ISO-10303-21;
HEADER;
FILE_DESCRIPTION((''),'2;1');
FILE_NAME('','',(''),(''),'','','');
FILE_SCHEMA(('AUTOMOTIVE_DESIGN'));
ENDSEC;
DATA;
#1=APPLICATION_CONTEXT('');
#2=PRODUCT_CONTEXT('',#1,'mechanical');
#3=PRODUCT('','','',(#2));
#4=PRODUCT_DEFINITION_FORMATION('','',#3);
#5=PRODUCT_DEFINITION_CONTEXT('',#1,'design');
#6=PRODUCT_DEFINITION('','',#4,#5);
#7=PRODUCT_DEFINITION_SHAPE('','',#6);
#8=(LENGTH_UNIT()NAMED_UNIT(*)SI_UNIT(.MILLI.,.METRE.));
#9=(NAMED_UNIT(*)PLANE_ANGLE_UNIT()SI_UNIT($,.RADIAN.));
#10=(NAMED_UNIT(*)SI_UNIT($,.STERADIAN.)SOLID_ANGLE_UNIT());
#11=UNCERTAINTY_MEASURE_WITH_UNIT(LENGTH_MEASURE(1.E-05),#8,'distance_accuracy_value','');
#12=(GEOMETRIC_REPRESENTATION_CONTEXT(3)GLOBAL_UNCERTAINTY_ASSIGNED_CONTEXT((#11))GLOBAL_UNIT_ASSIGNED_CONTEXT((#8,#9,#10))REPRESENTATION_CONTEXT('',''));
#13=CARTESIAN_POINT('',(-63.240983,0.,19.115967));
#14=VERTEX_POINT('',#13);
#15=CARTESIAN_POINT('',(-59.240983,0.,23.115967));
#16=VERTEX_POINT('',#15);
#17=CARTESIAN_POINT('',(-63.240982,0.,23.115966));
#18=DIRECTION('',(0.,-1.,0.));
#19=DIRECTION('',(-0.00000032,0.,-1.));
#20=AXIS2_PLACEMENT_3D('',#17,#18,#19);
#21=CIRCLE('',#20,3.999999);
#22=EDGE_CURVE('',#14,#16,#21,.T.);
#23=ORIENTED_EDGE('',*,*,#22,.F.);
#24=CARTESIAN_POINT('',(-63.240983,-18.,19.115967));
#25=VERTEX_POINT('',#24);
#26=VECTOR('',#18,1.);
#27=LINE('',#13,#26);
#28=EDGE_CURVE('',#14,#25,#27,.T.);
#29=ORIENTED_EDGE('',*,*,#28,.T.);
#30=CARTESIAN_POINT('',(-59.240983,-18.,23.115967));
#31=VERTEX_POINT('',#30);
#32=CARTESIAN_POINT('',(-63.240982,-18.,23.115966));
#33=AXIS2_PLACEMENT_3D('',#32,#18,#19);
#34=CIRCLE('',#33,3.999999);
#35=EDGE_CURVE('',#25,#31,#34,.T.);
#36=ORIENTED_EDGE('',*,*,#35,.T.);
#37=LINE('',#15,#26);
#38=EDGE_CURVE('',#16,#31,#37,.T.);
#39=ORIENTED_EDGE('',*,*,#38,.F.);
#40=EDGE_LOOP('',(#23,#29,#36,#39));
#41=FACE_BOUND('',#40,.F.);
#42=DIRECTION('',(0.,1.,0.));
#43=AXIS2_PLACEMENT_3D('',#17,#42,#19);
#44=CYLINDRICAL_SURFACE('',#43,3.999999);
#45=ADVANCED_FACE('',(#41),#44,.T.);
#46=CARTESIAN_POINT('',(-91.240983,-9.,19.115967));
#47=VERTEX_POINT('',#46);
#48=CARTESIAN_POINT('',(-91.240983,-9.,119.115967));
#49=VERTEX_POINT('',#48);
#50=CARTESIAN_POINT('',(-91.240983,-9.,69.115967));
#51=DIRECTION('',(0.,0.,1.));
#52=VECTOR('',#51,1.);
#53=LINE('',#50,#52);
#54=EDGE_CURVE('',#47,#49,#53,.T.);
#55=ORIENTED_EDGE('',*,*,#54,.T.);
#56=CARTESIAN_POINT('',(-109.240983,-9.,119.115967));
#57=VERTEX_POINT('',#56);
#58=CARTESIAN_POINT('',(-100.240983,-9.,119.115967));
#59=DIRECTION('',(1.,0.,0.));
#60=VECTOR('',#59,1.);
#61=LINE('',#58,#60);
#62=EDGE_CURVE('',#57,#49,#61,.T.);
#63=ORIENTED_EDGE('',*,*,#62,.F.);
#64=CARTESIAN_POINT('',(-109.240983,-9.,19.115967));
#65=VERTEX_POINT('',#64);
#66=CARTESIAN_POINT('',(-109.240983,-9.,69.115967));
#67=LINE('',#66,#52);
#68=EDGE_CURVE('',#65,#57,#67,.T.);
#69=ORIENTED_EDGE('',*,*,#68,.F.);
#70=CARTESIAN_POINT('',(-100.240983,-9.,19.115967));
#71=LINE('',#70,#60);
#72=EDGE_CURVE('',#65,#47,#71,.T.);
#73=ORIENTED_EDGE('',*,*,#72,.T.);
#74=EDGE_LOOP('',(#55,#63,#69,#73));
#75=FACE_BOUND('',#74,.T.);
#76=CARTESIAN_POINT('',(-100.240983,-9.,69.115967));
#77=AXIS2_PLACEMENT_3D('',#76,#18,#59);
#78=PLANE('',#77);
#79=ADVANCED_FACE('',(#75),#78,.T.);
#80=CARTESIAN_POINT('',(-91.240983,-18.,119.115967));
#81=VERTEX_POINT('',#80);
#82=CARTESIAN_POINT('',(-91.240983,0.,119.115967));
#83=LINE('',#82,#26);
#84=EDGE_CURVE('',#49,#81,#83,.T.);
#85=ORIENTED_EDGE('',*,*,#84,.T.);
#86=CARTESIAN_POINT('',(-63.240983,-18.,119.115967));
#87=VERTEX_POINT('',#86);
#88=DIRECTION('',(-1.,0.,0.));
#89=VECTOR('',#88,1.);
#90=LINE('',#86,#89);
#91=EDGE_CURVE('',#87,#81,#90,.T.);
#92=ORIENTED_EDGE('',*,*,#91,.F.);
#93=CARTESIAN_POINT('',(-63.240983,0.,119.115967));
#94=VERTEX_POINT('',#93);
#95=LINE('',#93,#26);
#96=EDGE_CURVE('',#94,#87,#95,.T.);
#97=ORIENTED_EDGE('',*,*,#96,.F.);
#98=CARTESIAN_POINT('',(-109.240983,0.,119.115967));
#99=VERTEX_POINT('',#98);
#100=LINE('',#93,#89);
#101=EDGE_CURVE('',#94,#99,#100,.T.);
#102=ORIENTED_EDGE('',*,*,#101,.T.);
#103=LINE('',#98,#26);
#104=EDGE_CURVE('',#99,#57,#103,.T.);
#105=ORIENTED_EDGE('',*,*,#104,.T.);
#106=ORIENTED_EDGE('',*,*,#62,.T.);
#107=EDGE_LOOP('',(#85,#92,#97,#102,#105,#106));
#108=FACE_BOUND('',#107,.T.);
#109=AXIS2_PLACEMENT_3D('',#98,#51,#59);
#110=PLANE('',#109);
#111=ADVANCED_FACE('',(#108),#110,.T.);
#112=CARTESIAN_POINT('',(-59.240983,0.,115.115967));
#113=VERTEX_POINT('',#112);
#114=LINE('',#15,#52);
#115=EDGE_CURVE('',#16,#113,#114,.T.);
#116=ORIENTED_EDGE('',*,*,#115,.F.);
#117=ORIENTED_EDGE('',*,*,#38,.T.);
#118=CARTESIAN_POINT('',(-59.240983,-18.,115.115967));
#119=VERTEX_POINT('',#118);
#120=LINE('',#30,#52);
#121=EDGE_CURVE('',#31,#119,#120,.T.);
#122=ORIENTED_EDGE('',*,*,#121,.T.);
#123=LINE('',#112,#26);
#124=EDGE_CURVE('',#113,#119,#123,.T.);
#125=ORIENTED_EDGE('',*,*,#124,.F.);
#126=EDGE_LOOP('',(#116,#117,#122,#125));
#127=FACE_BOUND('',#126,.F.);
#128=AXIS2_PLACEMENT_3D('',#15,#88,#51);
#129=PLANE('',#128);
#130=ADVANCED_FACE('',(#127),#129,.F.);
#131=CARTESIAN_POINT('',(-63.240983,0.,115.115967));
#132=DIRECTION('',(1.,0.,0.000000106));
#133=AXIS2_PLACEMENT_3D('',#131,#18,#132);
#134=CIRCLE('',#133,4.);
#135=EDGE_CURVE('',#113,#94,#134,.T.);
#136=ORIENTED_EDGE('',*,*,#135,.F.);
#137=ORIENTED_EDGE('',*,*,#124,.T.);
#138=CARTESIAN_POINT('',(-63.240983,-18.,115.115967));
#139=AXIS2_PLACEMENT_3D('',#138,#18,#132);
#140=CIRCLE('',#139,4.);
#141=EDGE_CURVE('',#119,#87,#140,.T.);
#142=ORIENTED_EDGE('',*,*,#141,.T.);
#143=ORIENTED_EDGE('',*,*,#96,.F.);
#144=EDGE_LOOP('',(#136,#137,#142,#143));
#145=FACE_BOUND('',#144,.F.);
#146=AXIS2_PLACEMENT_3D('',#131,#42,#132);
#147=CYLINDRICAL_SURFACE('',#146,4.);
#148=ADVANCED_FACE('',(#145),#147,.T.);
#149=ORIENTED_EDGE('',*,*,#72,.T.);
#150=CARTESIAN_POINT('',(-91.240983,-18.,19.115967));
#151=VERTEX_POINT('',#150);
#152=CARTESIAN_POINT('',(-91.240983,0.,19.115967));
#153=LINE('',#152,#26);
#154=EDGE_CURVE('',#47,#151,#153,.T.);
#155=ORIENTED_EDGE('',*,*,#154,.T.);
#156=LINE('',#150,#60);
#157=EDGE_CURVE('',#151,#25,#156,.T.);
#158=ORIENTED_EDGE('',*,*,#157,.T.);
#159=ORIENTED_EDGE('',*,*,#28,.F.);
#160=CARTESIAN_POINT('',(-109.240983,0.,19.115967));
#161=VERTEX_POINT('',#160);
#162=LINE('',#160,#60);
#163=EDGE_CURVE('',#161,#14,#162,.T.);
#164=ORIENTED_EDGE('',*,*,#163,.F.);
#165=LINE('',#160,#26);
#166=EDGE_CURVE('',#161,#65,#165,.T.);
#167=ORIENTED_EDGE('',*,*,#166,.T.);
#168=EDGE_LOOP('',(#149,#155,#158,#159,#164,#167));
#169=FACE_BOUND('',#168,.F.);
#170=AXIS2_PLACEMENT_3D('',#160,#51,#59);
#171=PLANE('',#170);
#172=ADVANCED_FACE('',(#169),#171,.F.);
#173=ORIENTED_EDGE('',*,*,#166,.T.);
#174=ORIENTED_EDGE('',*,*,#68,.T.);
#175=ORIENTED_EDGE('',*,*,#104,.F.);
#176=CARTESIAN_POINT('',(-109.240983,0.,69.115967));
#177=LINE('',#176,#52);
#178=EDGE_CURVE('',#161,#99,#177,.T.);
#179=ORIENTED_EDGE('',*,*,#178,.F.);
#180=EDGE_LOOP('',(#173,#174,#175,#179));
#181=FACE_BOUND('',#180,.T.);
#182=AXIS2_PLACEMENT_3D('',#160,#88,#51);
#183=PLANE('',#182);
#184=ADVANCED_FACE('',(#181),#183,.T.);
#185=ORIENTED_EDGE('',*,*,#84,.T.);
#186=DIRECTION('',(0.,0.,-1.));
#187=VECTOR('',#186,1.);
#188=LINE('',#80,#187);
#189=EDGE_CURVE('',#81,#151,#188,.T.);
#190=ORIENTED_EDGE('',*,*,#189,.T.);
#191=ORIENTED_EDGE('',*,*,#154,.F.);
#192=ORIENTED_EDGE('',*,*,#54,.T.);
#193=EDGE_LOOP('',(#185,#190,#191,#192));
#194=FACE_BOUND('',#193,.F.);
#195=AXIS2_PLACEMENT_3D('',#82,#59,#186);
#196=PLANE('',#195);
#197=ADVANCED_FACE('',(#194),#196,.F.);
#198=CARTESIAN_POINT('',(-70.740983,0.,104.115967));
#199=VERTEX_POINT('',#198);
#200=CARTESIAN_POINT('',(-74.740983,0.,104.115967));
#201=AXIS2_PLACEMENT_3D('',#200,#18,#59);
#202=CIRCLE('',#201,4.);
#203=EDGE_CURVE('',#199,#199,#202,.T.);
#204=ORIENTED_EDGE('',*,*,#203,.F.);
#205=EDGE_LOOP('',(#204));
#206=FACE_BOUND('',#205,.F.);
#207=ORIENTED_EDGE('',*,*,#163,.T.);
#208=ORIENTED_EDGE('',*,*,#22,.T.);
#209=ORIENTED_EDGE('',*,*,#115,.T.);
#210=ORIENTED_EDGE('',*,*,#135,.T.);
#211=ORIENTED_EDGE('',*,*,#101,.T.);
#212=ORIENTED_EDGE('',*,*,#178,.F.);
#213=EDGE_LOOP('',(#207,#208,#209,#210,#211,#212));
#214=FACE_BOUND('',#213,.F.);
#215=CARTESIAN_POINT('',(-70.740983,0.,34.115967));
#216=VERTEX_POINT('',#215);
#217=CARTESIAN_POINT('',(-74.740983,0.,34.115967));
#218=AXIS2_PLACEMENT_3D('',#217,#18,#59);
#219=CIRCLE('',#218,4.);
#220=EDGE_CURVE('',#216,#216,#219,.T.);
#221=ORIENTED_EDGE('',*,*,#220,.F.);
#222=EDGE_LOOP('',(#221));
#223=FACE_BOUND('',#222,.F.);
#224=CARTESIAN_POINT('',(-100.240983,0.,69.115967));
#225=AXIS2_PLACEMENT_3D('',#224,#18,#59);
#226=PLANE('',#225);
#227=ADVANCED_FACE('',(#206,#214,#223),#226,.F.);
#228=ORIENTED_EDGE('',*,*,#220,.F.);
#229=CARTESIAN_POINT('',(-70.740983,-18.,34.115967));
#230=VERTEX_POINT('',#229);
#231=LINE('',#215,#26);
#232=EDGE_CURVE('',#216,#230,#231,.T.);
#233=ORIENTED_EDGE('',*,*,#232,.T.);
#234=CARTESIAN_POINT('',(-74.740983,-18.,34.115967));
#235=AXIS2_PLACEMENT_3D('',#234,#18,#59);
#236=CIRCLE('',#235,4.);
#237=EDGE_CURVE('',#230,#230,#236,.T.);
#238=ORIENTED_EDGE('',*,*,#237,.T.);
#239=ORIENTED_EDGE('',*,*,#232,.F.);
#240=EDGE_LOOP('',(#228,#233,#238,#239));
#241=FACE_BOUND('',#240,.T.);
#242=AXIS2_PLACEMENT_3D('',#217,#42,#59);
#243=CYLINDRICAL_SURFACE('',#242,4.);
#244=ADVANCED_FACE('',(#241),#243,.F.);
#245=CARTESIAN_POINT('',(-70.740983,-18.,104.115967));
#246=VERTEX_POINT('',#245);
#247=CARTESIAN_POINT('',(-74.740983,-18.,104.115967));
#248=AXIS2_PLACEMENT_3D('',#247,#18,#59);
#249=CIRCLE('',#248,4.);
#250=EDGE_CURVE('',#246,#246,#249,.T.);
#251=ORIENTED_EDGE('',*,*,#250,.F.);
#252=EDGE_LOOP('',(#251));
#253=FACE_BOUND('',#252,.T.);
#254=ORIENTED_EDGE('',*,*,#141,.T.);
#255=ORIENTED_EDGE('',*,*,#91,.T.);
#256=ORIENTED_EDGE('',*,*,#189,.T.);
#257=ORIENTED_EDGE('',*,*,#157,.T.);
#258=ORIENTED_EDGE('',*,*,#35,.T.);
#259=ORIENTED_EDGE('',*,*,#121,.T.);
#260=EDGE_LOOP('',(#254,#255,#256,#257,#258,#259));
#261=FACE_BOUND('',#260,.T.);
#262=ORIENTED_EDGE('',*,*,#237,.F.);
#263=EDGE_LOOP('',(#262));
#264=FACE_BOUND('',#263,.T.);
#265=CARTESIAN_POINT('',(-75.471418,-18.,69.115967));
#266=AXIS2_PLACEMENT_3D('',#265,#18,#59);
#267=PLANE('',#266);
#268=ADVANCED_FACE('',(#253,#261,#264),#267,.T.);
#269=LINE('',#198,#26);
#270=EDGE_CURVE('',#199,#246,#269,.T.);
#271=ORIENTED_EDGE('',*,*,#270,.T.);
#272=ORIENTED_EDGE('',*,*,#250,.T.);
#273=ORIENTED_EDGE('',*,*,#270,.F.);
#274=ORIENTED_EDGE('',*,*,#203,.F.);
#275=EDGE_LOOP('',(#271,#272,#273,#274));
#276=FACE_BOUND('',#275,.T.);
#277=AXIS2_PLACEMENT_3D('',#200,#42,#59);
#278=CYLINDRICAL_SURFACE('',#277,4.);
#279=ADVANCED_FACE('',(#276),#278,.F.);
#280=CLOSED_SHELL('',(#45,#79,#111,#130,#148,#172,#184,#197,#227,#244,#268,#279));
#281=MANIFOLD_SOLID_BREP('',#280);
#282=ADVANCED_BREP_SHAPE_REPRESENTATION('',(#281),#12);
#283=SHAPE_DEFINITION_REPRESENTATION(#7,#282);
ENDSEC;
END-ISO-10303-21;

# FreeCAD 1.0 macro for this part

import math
import FreeCAD as App
import Part
import Sketcher
from FreeCAD import Vector


def add_polygon(sketch, points):
    """Adds a closed chain of lines whose ends are joined by coincident constraints."""
    first, n = sketch.GeometryCount, len(points)
    for a, b in zip(points, points[1:] + points[:1]):
        sketch.addGeometry(Part.LineSegment(App.Vector(*a, 0), App.Vector(*b, 0)), False)
    for i in range(n):
        sketch.addConstraint(Sketcher.Constraint("Coincident", first + i, 2, first + (i + 1) % n, 1))

doc = App.newDocument("Part")
body = doc.addObject("PartDesign::Body", "Body")

# Sketch on XZ plane
sketch1 = body.newObject("Sketcher::SketchObject", "Sketch")
sketch1.AttachmentSupport = (doc.getObject("XZ_Plane"), [""])
sketch1.MapMode = "FlatFace"
sketch1.addGeometry([
    Part.LineSegment(Vector(-59.2, 23.1, 0), Vector(-59.2, 115.1, 0)),  # 0
    Part.ArcOfCircle(Part.Circle(Vector(-63.2, 115.1, 0), Vector(0, 0, 1), 4), math.radians(0), math.radians(90)),  # 1
    Part.LineSegment(Vector(-63.2, 119.1, 0), Vector(-91.2, 119.1, 0)),  # 2
    Part.LineSegment(Vector(-91.2, 119.1, 0), Vector(-91.2, 19.1, 0)),  # 3
    Part.LineSegment(Vector(-91.2, 19.1, 0), Vector(-63.2, 19.1, 0)),  # 4
    Part.ArcOfCircle(Part.Circle(Vector(-63.2, 23.1, 0), Vector(0, 0, 1), 4), math.radians(-90), math.radians(0)),  # 5
    Part.Circle(Vector(-74.7, 34.1, 0), Vector(0, 0, 1), 4),  # 6
    Part.Circle(Vector(-74.7, 104.1, 0), Vector(0, 0, 1), 4),  # 7
], False)
sketch1.addConstraint([
    Sketcher.Constraint("Tangent", 0, 2, 1, 1),
    Sketcher.Constraint("Tangent", 1, 2, 2, 1),
    Sketcher.Constraint("Coincident", 2, 2, 3, 1),
    Sketcher.Constraint("Coincident", 3, 2, 4, 1),
    Sketcher.Constraint("Tangent", 4, 2, 5, 1),
    Sketcher.Constraint("Tangent", 5, 2, 0, 1),
    Sketcher.Constraint("Vertical", 0),
    Sketcher.Constraint("Horizontal", 2),
    Sketcher.Constraint("Vertical", 3),
    Sketcher.Constraint("Horizontal", 4),
    Sketcher.Constraint("Equal", 1, 5),
    Sketcher.Constraint("Equal", 5, 6),
    Sketcher.Constraint("Equal", 6, 7),
    Sketcher.Constraint("Vertical", 6, 3, 7, 3),
    Sketcher.Constraint("Diameter", 6, 8.0),
    Sketcher.Constraint("DistanceX", 2, 2, 2, 1, 28.0),
    Sketcher.Constraint("DistanceY", 0, 1, 0, 2, 92.0),
    Sketcher.Constraint("DistanceY", 5, 3, 6, 3, 11.000001),
    Sketcher.Constraint("DistanceY", 7, 3, 1, 3, 11.0),
    Sketcher.Constraint("DistanceX", 6, 3, 5, 3, 11.500001),
    Sketcher.Constraint("DistanceX", 5, 3, -1, 1, 63.240982),
    Sketcher.Constraint("DistanceY", -1, 1, 1, 3, 115.115967),
])
pad1 = body.newObject("PartDesign::Pad", "Pad")
pad1.Profile = sketch1
pad1.Length = 18

# Sketch on XZ plane
sketch2 = body.newObject("Sketcher::SketchObject", "Sketch001")
sketch2.AttachmentSupport = (doc.getObject("XZ_Plane"), [""])
sketch2.MapMode = "FlatFace"
add_polygon(sketch2, [(-109, 119), (-109, 19), (-91, 19), (-91, 119)])  # lines 0-3
sketch2.addConstraint([
    Sketcher.Constraint("Vertical", 0),
    Sketcher.Constraint("Horizontal", 1),
    Sketcher.Constraint("Vertical", 2),
    Sketcher.Constraint("Horizontal", 3),
    Sketcher.Constraint("DistanceX", 1, 1, 1, 2, 18.0),
    Sketcher.Constraint("DistanceY", 0, 2, 0, 1, 100.0),
    Sketcher.Constraint("DistanceX", 0, 2, -1, 1, 109.240983),
    Sketcher.Constraint("DistanceY", -1, 1, 0, 2, 19.115967),
])
pad2 = body.newObject("PartDesign::Pad", "Pad001")
pad2.Profile = sketch2
pad2.Length = 9

doc.recompute()
